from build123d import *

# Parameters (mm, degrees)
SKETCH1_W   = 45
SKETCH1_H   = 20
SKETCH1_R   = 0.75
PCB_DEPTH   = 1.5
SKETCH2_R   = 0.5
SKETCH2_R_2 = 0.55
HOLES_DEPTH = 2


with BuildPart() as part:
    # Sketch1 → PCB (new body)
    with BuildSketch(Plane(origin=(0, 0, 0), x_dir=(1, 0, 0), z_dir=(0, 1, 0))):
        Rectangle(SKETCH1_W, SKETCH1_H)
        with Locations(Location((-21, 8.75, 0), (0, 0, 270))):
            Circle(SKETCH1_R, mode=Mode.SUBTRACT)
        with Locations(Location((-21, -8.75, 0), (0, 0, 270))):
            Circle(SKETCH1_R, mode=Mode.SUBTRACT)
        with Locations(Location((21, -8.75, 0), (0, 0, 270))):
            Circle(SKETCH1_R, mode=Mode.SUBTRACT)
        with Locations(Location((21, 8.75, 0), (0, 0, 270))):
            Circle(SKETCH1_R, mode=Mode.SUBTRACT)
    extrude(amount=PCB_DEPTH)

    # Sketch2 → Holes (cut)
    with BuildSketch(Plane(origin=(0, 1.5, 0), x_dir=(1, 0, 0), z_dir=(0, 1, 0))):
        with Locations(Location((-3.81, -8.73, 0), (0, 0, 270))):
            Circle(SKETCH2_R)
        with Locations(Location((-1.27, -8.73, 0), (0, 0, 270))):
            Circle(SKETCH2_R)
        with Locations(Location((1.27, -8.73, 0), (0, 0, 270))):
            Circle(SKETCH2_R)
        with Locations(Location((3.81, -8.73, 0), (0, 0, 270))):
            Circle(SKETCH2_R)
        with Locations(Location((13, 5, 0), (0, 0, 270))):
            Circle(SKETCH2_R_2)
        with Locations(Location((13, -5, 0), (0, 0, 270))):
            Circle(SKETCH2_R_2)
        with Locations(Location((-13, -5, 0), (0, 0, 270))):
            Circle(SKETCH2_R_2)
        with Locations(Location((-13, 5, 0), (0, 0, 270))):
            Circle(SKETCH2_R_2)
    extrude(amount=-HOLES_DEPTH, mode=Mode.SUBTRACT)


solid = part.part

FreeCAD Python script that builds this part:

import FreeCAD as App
import Part
import Sketcher
from FreeCAD import Vector


def add_polygon(sketch, points):
    """Adds a closed chain of lines whose ends are joined by coincident constraints."""
    first, n = sketch.GeometryCount, len(points)
    for a, b in zip(points, points[1:] + points[:1]):
        sketch.addGeometry(Part.LineSegment(App.Vector(*a, 0), App.Vector(*b, 0)), False)
    for i in range(n):
        sketch.addConstraint(Sketcher.Constraint("Coincident", first + i, 2, first + (i + 1) % n, 1))

doc = App.newDocument("Part")
body = doc.addObject("PartDesign::Body", "Body")

sketch1 = body.newObject("Sketcher::SketchObject", "Sketch")
sketch1.AttachmentSupport = (doc.getObject("XZ_Plane"), [""])
sketch1.MapMode = "FlatFace"
add_polygon(sketch1, [(-22.5, -10), (-22.5, 10), (22.5, 10), (22.5, -10)])
sketch1.addGeometry(Part.Circle(Vector(-21, 8.8, 0), Vector(0, 0, 1), 0.8), False)
sketch1.addGeometry(Part.Circle(Vector(21, 8.8, 0), Vector(0, 0, 1), 0.8), False)
sketch1.addGeometry(Part.Circle(Vector(-21, -8.8, 0), Vector(0, 0, 1), 0.8), False)
sketch1.addGeometry(Part.Circle(Vector(21, -8.8, 0), Vector(0, 0, 1), 0.8), False)
sketch1.addConstraint(Sketcher.Constraint("Vertical", 0))
sketch1.addConstraint(Sketcher.Constraint("Horizontal", 1))
sketch1.addConstraint(Sketcher.Constraint("Vertical", 2))
sketch1.addConstraint(Sketcher.Constraint("Horizontal", 3))
sketch1.addConstraint(Sketcher.Constraint("Equal", 4, 5))
sketch1.addConstraint(Sketcher.Constraint("Equal", 5, 6))
sketch1.addConstraint(Sketcher.Constraint("Equal", 6, 7))
sketch1.addConstraint(Sketcher.Constraint("Symmetric", 5, 3, 6, 3, -1, 1))
sketch1.addConstraint(Sketcher.Constraint("Symmetric", 4, 3, 7, 3, -1, 1))
sketch1.addConstraint(Sketcher.Constraint("Symmetric", 0, 2, 2, 2, -1, 1))
sketch1.addConstraint(Sketcher.Constraint("Symmetric", 4, 3, 5, 3, -2))
sketch1.addConstraint(Sketcher.Constraint("Diameter", 4, 1.5))
sketch1.addConstraint(Sketcher.Constraint("DistanceX", 1, 1, 1, 2, 45.0))
sketch1.addConstraint(Sketcher.Constraint("DistanceY", 0, 1, 0, 2, 20.0))
sketch1.addConstraint(Sketcher.Constraint("DistanceX", 4, 3, -1, 1, 21.0))
sketch1.addConstraint(Sketcher.Constraint("DistanceY", 6, 3, 4, 3, 17.5))
pad1 = body.newObject("PartDesign::Pad", "Pad")
pad1.Profile = sketch1
pad1.Length = 1.5
pad1.Reversed = True

sketch2 = body.newObject("Sketcher::SketchObject", "Sketch001")
sketch2.AttachmentSupport = (doc.getObject("XZ_Plane"), [""])
sketch2.MapMode = "FlatFace"
sketch2.AttachmentOffset = App.Placement(Vector(0, 0, -1.5), App.Rotation())
sketch2.addGeometry(Part.Circle(Vector(-3.8, 8.7, 0), Vector(0, 0, 1), 0.5), False)
sketch2.addGeometry(Part.Circle(Vector(-1.3, 8.7, 0), Vector(0, 0, 1), 0.5), False)
sketch2.addGeometry(Part.Circle(Vector(1.3, 8.7, 0), Vector(0, 0, 1), 0.5), False)
sketch2.addGeometry(Part.Circle(Vector(3.8, 8.7, 0), Vector(0, 0, 1), 0.5), False)
sketch2.addGeometry(Part.Circle(Vector(13, -5, 0), Vector(0, 0, 1), 0.6), False)
sketch2.addGeometry(Part.Circle(Vector(13, 5, 0), Vector(0, 0, 1), 0.6), False)
sketch2.addGeometry(Part.Circle(Vector(-13, 5, 0), Vector(0, 0, 1), 0.6), False)
sketch2.addGeometry(Part.Circle(Vector(-13, -5, 0), Vector(0, 0, 1), 0.6), False)
sketch2.addConstraint(Sketcher.Constraint("Equal", 0, 1))
sketch2.addConstraint(Sketcher.Constraint("Equal", 1, 2))
sketch2.addConstraint(Sketcher.Constraint("Equal", 2, 3))
sketch2.addConstraint(Sketcher.Constraint("Equal", 4, 5))
sketch2.addConstraint(Sketcher.Constraint("Equal", 5, 6))
sketch2.addConstraint(Sketcher.Constraint("Equal", 6, 7))
sketch2.addConstraint(Sketcher.Constraint("Symmetric", 4, 3, 6, 3, -1, 1))
sketch2.addConstraint(Sketcher.Constraint("Symmetric", 5, 3, 7, 3, -1, 1))
sketch2.addConstraint(Sketcher.Constraint("Symmetric", 1, 3, 2, 3, -2))
sketch2.addConstraint(Sketcher.Constraint("Symmetric", 0, 3, 3, 3, -2))
sketch2.addConstraint(Sketcher.Constraint("Symmetric", 5, 3, 6, 3, -2))
sketch2.addConstraint(Sketcher.Constraint("Horizontal", 0, 3, 1, 3))
sketch2.addConstraint(Sketcher.Constraint("Diameter", 0, 1.0))
sketch2.addConstraint(Sketcher.Constraint("Diameter", 4, 1.1))
sketch2.addConstraint(Sketcher.Constraint("DistanceX", -1, 1, 4, 3, 13.0))
sketch2.addConstraint(Sketcher.Constraint("DistanceY", 4, 3, -1, 1, 5.0))
sketch2.addConstraint(Sketcher.Constraint("DistanceX", 0, 3, -1, 1, 3.81))
sketch2.addConstraint(Sketcher.Constraint("DistanceY", -1, 1, 0, 3, 8.73))
sketch2.addConstraint(Sketcher.Constraint("DistanceX", 1, 3, -1, 1, 1.27))
pocket1 = body.newObject("PartDesign::Pocket", "Pocket")
pocket1.Profile = sketch2
pocket1.Length = 2
pocket1.Reversed = True

doc.recompute()
